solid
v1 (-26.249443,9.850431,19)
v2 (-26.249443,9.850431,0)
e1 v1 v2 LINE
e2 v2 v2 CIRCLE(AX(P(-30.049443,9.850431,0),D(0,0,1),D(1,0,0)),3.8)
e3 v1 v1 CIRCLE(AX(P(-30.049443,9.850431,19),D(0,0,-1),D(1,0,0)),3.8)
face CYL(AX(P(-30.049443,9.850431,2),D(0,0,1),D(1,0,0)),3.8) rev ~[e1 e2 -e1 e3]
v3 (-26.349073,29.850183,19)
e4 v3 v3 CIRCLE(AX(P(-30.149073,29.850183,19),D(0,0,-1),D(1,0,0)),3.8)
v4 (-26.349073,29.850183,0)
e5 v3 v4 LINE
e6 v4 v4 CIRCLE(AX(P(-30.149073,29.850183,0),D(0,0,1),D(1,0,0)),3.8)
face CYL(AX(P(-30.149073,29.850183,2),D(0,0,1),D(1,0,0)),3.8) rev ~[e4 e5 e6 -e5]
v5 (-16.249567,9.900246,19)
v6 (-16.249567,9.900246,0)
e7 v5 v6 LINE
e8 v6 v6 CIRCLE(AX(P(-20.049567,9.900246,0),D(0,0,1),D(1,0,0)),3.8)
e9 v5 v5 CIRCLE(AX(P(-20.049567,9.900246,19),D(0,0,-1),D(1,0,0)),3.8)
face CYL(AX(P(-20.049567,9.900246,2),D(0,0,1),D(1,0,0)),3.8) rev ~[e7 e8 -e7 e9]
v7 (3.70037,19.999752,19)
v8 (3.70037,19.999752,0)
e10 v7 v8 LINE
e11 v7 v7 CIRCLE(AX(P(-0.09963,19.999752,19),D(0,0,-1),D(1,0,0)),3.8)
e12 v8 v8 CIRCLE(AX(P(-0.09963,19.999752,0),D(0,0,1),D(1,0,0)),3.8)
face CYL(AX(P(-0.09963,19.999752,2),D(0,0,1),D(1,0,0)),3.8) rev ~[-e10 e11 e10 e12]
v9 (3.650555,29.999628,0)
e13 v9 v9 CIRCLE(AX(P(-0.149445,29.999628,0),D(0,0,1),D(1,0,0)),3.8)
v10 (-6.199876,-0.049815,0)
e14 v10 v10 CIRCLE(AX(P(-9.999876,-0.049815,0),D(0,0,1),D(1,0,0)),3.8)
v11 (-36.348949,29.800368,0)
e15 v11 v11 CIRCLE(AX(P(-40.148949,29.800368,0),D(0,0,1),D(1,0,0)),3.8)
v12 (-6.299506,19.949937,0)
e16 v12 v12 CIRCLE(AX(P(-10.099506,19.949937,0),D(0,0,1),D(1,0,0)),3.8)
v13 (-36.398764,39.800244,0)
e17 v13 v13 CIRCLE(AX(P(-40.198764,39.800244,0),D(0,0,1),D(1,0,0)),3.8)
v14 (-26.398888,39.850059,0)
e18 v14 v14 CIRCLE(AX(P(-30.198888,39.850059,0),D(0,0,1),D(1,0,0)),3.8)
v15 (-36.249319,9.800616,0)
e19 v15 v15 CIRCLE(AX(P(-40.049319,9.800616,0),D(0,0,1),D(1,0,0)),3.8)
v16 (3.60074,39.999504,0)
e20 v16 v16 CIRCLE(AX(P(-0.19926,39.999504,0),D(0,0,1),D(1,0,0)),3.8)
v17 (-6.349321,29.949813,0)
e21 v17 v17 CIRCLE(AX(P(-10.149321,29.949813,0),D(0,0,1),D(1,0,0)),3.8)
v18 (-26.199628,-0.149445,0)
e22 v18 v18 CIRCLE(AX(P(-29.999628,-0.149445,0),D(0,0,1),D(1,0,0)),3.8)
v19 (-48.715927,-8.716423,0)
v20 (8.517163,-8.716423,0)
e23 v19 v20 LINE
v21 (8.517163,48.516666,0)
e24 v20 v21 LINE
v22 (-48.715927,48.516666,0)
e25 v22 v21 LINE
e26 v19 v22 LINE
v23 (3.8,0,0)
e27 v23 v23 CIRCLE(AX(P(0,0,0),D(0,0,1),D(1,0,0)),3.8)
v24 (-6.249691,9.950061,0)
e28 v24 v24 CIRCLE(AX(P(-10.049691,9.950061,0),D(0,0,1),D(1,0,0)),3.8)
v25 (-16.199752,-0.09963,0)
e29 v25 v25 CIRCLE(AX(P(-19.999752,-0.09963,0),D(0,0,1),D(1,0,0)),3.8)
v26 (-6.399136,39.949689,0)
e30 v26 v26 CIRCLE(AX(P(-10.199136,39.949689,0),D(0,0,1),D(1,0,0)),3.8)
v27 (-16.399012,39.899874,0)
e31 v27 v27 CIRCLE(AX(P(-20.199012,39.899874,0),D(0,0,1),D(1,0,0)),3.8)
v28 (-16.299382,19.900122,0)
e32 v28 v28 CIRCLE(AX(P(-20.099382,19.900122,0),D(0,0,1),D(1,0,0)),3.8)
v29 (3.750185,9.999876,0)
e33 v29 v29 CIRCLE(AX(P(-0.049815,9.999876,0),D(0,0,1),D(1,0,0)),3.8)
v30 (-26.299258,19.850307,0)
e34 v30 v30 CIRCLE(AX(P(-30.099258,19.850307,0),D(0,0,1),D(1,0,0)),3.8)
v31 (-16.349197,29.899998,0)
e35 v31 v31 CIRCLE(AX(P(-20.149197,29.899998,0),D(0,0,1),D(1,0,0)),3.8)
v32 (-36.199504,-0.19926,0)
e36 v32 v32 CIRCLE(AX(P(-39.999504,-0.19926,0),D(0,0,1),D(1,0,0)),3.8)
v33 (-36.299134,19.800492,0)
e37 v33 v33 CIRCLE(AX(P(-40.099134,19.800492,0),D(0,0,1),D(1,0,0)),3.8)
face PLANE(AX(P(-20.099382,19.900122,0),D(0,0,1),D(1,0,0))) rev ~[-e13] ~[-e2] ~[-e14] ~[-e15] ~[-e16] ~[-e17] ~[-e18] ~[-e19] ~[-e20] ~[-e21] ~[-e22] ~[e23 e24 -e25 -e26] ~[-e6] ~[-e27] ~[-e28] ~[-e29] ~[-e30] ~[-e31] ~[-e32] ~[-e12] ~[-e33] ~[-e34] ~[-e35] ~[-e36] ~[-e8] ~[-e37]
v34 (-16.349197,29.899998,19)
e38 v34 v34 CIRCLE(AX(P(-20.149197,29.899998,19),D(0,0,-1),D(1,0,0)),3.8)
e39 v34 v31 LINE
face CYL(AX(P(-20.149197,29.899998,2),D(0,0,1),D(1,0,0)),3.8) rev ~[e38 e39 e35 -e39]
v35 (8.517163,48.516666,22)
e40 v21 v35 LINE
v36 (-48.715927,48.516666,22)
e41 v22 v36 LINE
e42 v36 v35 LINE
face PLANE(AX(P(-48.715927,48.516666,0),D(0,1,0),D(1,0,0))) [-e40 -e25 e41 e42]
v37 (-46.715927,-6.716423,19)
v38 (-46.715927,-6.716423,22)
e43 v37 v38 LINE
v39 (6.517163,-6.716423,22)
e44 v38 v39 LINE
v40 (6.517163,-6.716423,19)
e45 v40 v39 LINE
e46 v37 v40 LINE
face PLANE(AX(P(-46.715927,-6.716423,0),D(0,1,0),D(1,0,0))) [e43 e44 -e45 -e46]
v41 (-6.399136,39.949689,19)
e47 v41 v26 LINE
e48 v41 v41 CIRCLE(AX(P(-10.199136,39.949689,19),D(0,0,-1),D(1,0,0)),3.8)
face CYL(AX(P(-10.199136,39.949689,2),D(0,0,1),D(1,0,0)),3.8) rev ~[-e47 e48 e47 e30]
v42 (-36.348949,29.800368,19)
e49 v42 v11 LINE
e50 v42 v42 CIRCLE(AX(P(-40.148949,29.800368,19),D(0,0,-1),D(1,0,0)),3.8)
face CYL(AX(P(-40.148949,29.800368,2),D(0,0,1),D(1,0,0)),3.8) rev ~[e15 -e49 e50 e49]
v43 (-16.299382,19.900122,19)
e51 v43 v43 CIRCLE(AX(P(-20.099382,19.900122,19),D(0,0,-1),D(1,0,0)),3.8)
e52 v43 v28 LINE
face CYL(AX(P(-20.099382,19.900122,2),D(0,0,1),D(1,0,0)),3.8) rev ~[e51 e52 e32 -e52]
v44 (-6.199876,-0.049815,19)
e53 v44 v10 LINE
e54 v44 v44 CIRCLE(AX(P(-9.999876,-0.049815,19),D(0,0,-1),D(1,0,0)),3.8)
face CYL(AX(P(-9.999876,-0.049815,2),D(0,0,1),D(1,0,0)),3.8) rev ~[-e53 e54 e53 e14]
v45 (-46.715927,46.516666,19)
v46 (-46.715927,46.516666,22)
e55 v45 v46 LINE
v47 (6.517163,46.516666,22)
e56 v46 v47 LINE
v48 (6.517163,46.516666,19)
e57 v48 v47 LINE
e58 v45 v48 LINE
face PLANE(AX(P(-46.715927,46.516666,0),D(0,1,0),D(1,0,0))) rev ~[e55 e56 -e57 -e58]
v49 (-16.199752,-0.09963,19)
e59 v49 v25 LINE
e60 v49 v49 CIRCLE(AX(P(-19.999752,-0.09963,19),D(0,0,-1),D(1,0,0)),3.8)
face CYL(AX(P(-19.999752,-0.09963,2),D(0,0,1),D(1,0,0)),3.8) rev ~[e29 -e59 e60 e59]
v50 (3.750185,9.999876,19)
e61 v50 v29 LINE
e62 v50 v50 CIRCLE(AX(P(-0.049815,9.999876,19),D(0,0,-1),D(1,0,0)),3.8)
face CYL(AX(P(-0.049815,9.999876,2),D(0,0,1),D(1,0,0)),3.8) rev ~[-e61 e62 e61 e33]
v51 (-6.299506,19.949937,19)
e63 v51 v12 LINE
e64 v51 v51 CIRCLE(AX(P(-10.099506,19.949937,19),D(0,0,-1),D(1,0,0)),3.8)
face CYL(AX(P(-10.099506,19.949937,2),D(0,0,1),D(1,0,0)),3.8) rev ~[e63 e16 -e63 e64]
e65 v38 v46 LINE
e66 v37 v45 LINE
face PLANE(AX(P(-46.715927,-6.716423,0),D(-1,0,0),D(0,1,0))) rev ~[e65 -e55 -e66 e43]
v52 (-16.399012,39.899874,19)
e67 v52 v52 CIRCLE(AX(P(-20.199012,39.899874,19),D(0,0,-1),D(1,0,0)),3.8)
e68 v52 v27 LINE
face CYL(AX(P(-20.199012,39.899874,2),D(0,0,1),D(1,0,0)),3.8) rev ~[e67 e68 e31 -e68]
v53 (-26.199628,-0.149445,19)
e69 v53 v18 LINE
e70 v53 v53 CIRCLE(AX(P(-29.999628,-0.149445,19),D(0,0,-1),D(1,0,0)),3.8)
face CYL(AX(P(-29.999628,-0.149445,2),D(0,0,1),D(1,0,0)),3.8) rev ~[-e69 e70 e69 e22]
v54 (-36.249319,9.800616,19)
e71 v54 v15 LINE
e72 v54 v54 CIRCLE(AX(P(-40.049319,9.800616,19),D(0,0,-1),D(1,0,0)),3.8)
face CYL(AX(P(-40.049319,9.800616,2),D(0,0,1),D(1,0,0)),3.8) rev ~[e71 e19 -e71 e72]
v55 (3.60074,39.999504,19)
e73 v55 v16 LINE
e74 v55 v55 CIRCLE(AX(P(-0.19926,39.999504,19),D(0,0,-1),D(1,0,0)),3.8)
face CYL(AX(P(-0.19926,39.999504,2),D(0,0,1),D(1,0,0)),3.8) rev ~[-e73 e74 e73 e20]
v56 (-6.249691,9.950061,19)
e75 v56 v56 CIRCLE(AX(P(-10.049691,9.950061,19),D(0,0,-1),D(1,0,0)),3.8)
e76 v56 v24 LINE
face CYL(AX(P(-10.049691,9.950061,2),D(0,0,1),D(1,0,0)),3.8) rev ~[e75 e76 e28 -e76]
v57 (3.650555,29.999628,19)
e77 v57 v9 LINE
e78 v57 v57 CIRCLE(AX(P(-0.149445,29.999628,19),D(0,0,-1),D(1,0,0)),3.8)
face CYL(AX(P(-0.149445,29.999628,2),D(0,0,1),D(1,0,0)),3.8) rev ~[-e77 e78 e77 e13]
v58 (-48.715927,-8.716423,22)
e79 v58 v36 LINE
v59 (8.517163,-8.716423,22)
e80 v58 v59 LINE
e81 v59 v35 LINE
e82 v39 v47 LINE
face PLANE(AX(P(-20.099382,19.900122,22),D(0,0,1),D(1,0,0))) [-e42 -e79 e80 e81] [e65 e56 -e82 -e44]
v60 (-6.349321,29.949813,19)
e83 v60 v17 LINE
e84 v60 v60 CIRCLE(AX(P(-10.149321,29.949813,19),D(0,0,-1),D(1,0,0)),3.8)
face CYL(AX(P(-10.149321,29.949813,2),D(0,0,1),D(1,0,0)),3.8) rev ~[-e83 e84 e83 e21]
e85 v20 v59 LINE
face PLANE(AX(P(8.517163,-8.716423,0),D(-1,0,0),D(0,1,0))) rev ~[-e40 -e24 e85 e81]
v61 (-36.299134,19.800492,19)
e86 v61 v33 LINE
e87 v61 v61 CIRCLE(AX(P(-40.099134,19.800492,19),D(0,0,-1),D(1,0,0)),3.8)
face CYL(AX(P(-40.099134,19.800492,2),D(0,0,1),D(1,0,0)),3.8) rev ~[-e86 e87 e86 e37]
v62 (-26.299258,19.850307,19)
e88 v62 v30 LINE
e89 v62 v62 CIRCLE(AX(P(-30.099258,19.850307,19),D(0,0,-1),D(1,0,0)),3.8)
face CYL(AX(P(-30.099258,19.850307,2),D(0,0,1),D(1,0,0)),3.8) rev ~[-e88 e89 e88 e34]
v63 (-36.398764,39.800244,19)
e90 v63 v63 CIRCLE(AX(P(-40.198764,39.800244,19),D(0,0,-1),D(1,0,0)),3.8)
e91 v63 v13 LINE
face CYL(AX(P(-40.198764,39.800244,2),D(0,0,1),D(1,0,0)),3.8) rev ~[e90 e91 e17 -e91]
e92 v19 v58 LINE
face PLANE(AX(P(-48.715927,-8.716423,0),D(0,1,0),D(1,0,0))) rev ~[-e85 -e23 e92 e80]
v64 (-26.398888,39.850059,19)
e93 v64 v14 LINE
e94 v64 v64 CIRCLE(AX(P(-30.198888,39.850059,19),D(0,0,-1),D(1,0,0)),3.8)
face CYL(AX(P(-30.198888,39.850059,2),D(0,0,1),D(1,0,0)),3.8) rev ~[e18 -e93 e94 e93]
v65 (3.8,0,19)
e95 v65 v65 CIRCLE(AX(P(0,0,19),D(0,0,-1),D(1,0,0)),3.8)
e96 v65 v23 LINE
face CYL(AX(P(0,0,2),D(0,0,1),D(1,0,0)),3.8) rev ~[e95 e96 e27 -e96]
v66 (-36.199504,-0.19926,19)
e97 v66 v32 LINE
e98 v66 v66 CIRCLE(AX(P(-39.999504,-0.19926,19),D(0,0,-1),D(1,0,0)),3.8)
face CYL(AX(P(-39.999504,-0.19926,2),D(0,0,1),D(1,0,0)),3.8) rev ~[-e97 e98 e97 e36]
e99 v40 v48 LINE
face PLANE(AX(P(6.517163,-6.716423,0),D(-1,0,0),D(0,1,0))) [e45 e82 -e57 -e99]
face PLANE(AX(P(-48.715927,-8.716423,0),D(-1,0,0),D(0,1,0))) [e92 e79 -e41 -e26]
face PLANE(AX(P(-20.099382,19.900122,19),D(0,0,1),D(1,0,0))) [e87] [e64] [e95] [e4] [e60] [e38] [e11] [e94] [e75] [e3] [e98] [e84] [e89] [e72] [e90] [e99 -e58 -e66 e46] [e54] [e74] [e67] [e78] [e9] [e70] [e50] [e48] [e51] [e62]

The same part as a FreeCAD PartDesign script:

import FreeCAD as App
import Part
import Sketcher

V = App.Vector
Q = App.Units.Quantity


def add_polygon(sketch, points):
    """Adds a closed chain of lines whose ends are joined by coincident constraints."""
    first, n = sketch.GeometryCount, len(points)
    for a, b in zip(points, points[1:] + points[:1]):
        sketch.addGeometry(Part.LineSegment(App.Vector(*a, 0), App.Vector(*b, 0)), False)
    for i in range(n):
        sketch.addConstraint(Sketcher.Constraint("Coincident", first + i, 2, first + (i + 1) % n, 1))

doc = App.newDocument("Part")
body = doc.addObject("PartDesign::Body", "Body")

# Sketch on XY plane
sketch1 = body.newObject("Sketcher::SketchObject", "Sketch")
sketch1.AttachmentSupport = (doc.getObject("XY_Plane"), [""])
sketch1.MapMode = "FlatFace"
add_polygon(sketch1, [(-47, 47), (-47, -7), (7, -7), (7, 47)])  # lines 0-3
sketch1.addConstraint([
    Sketcher.Constraint("Vertical", 0),
    Sketcher.Constraint("Horizontal", 1),
    Sketcher.Constraint("Vertical", 2),
    Sketcher.Constraint("Horizontal", 3),
    Sketcher.Constraint("Equal", 3, 0),
    Sketcher.Constraint("DistanceX", 1, 1, 1, 2, Q("53.23309 mm")),
    Sketcher.Constraint("DistanceX", 0, 2, -1, 1, Q("46.715927 mm")),
    Sketcher.Constraint("DistanceY", 0, 2, -1, 1, Q("6.716423 mm")),
])
pad1 = body.newObject("PartDesign::Pad", "Pad")
pad1.Profile = sketch1
pad1.Length = 19

# Sketch on XY plane
sketch2 = body.newObject("Sketcher::SketchObject", "Sketch001")
sketch2.AttachmentSupport = (doc.getObject("XY_Plane"), [""])
sketch2.MapMode = "FlatFace"
sketch2.AttachmentOffset = App.Placement(V(0, 0, 2), App.Rotation())
sketch2.addGeometry([
    Part.Circle(V(0, 0, 0), V(0, 0, 1), 3.8),  # 0
    Part.Circle(V(-10, 0, 0), V(0, 0, 1), 3.8),  # 1
    Part.Circle(V(-20, -0.1, 0), V(0, 0, 1), 3.8),  # 2
    Part.Circle(V(-30, -0.1, 0), V(0, 0, 1), 3.8),  # 3
    Part.Circle(V(-40, -0.2, 0), V(0, 0, 1), 3.8),  # 4
    Part.Circle(V(0, 10, 0), V(0, 0, 1), 3.8),  # 5
    Part.Circle(V(-10, 10, 0), V(0, 0, 1), 3.8),  # 6
    Part.Circle(V(-20, 9.9, 0), V(0, 0, 1), 3.8),  # 7
    Part.Circle(V(-30, 9.9, 0), V(0, 0, 1), 3.8),  # 8
    Part.Circle(V(-40, 9.8, 0), V(0, 0, 1), 3.8),  # 9
    Part.Circle(V(-0.1, 20, 0), V(0, 0, 1), 3.8),  # 10
    Part.Circle(V(-10.1, 19.9, 0), V(0, 0, 1), 3.8),  # 11
    Part.Circle(V(-20.1, 19.9, 0), V(0, 0, 1), 3.8),  # 12
    Part.Circle(V(-30.1, 19.9, 0), V(0, 0, 1), 3.8),  # 13
    Part.Circle(V(-40.1, 19.8, 0), V(0, 0, 1), 3.8),  # 14
    Part.Circle(V(-0.1, 30, 0), V(0, 0, 1), 3.8),  # 15
    Part.Circle(V(-10.1, 29.9, 0), V(0, 0, 1), 3.8),  # 16
    Part.Circle(V(-20.1, 29.9, 0), V(0, 0, 1), 3.8),  # 17
    Part.Circle(V(-30.1, 29.9, 0), V(0, 0, 1), 3.8),  # 18
    Part.Circle(V(-40.1, 29.8, 0), V(0, 0, 1), 3.8),  # 19
    Part.Circle(V(-0.2, 40, 0), V(0, 0, 1), 3.8),  # 20
    Part.Circle(V(-10.2, 39.9, 0), V(0, 0, 1), 3.8),  # 21
    Part.Circle(V(-20.2, 39.9, 0), V(0, 0, 1), 3.8),  # 22
    Part.Circle(V(-30.2, 39.9, 0), V(0, 0, 1), 3.8),  # 23
    Part.Circle(V(-40.2, 39.8, 0), V(0, 0, 1), 3.8),  # 24
], False)
sketch2.addConstraint([
    Sketcher.Constraint("Coincident", 0, 3, -1, 1),
    Sketcher.Constraint("Equal", 0, 1),
    Sketcher.Constraint("Equal", 1, 2),
    Sketcher.Constraint("Equal", 2, 3),
    Sketcher.Constraint("Equal", 3, 4),
    Sketcher.Constraint("Equal", 4, 5),
    Sketcher.Constraint("Equal", 5, 6),
    Sketcher.Constraint("Equal", 6, 7),
    Sketcher.Constraint("Equal", 7, 8),
    Sketcher.Constraint("Equal", 8, 9),
    Sketcher.Constraint("Equal", 9, 10),
    Sketcher.Constraint("Equal", 10, 11),
    Sketcher.Constraint("Equal", 11, 12),
    Sketcher.Constraint("Equal", 12, 13),
    Sketcher.Constraint("Equal", 13, 14),
    Sketcher.Constraint("Equal", 14, 15),
    Sketcher.Constraint("Equal", 15, 16),
    Sketcher.Constraint("Equal", 16, 17),
    Sketcher.Constraint("Equal", 17, 18),
    Sketcher.Constraint("Equal", 18, 19),
    Sketcher.Constraint("Equal", 19, 20),
    Sketcher.Constraint("Equal", 20, 21),
    Sketcher.Constraint("Equal", 21, 22),
    Sketcher.Constraint("Equal", 22, 23),
    Sketcher.Constraint("Equal", 23, 24),
    Sketcher.Constraint("Diameter", 0, Q("7.6 mm")),
    Sketcher.Constraint("DistanceY", -1, 1, 17, 3, Q("29.899998 mm")),
    Sketcher.Constraint("DistanceY", 2, 3, -1, 1, Q("0.09963 mm")),
    Sketcher.Constraint("DistanceX", 3, 3, -1, 1, Q("29.999628 mm")),
    Sketcher.Constraint("DistanceY", 4, 3, -1, 1, Q("0.19926 mm")),
    Sketcher.Constraint("DistanceX", 6, 3, -1, 1, Q("10.049691 mm")),
    Sketcher.Constraint("DistanceY", -1, 1, 6, 3, Q("9.950061 mm")),
    Sketcher.Constraint("DistanceY", -1, 1, 8, 3, Q("9.850431 mm")),
    Sketcher.Constraint("DistanceX", 9, 3, -1, 1, Q("40.049319 mm")),
    Sketcher.Constraint("DistanceX", 10, 3, -1, 1, Q("0.09963 mm")),
    Sketcher.Constraint("DistanceX", 12, 3, -1, 1, Q("20.099382 mm")),
    Sketcher.Constraint("DistanceY", -1, 1, 12, 3, Q("19.900122 mm")),
    Sketcher.Constraint("DistanceY", -1, 1, 14, 3, Q("19.800492 mm")),
    Sketcher.Constraint("DistanceY", -1, 1, 15, 3, Q("29.999628 mm")),
    Sketcher.Constraint("DistanceX", 16, 3, -1, 1, Q("10.149321 mm")),
    Sketcher.Constraint("DistanceX", 19, 3, -1, 1, Q("40.148949 mm")),
    Sketcher.Constraint("DistanceX", 20, 3, -1, 1, Q("0.19926 mm")),
    Sketcher.Constraint("DistanceY", -1, 1, 21, 3, Q("39.949689 mm")),
    Sketcher.Constraint("DistanceX", 22, 3, -1, 1, Q("20.199012 mm")),
    Sketcher.Constraint("DistanceX", 23, 3, -1, 1, Q("30.198888 mm")),
    Sketcher.Constraint("DistanceY", -1, 1, 23, 3, Q("39.850059 mm")),
    Sketcher.Constraint("DistanceY", 3, 3, 1, 3, Q("0.09963 mm")),
    Sketcher.Constraint("DistanceX", 4, 3, 1, 3, Q("29.999628 mm")),
    Sketcher.Constraint("DistanceX", 1, 3, 5, 3, Q("9.950061 mm")),
    Sketcher.Constraint("DistanceY", 1, 3, 5, 3, Q("10.049691 mm")),
    Sketcher.Constraint("DistanceX", 2, 3, 6, 3, Q("9.950061 mm")),
    Sketcher.Constraint("DistanceX", 7, 3, 1, 3, Q("10.049691 mm")),
    Sketcher.Constraint("DistanceY", 1, 3, 7, 3, Q("9.950061 mm")),
    Sketcher.Constraint("DistanceX", 3, 3, 7, 3, Q("9.950061 mm")),
    Sketcher.Constraint("DistanceX", 8, 3, 2, 3, Q("10.049691 mm")),
    Sketcher.Constraint("DistanceY", 3, 3, 9, 3, Q("9.950061 mm")),
    Sketcher.Constraint("DistanceY", 6, 3, 10, 3, Q("10.049691 mm")),
    Sketcher.Constraint("DistanceX", 11, 3, 5, 3, Q("10.049691 mm")),
    Sketcher.Constraint("DistanceY", 5, 3, 11, 3, Q("9.950061 mm")),
    Sketcher.Constraint("DistanceX", 9, 3, 13, 3, Q("9.950061 mm")),
    Sketcher.Constraint("DistanceY", 9, 3, 13, 3, Q("10.049691 mm")),
    Sketcher.Constraint("DistanceX", 14, 3, 8, 3, Q("10.049691 mm")),
    Sketcher.Constraint("DistanceX", 11, 3, 15, 3, Q("9.950061 mm")),
    Sketcher.Constraint("DistanceY", 11, 3, 15, 3, Q("10.049691 mm")),
    Sketcher.Constraint("DistanceY", 10, 3, 16, 3, Q("9.950061 mm")),
    Sketcher.Constraint("DistanceX", 13, 3, 17, 3, Q("9.950061 mm")),
    Sketcher.Constraint("DistanceX", 14, 3, 18, 3, Q("9.950061 mm")),
    Sketcher.Constraint("DistanceY", 14, 3, 18, 3, Q("10.049691 mm")),
    Sketcher.Constraint("DistanceY", 13, 3, 19, 3, Q("9.950061 mm")),
    Sketcher.Constraint("DistanceY", 16, 3, 20, 3, Q("10.049691 mm")),
    Sketcher.Constraint("DistanceX", 21, 3, 15, 3, Q("10.049691 mm")),
    Sketcher.Constraint("DistanceY", 16, 3, 22, 3, Q("9.950061 mm")),
    Sketcher.Constraint("DistanceX", 24, 3, 18, 3, Q("10.049691 mm")),
    Sketcher.Constraint("DistanceY", 18, 3, 24, 3, Q("9.950061 mm")),
])
pocket1 = body.newObject("PartDesign::Pocket", "Pocket")
pocket1.Profile = sketch2
pocket1.Type = "ThroughAll"
pocket1.Midplane = True

# Sketch on XY plane
sketch3 = body.newObject("Sketcher::SketchObject", "Sketch002")
sketch3.AttachmentSupport = (doc.getObject("XY_Plane"), [""])
sketch3.MapMode = "FlatFace"
add_polygon(sketch3, [(-49, 49), (-49, -9), (9, -9), (9, 49)])  # lines 0-3
add_polygon(sketch3, [(7, -7), (-47, -7), (-47, 47), (7, 47)])  # lines 4-7
sketch3.addConstraint([
    Sketcher.Constraint("Vertical", 0),
    Sketcher.Constraint("Horizontal", 1),
    Sketcher.Constraint("Vertical", 2),
    Sketcher.Constraint("Horizontal", 3),
    Sketcher.Constraint("Horizontal", 4),
    Sketcher.Constraint("Vertical", 5),
    Sketcher.Constraint("Horizontal", 6),
    Sketcher.Constraint("Vertical", 7),
    Sketcher.Constraint("Equal", 3, 0),
    Sketcher.Constraint("Equal", 6, 5),
    Sketcher.Constraint("DistanceX", 0, 2, 4, 2, Q("2 mm")),
    Sketcher.Constraint("DistanceY", 0, 2, 4, 2, Q("2 mm")),
    Sketcher.Constraint("DistanceY", 5, 2, 3, 2, Q("2 mm")),
    Sketcher.Constraint("DistanceX", 1, 1, 1, 2, Q("57.23309 mm")),
    Sketcher.Constraint("DistanceX", 0, 2, -1, 1, Q("48.715927 mm")),
    Sketcher.Constraint("DistanceY", 0, 2, -1, 1, Q("8.716423 mm")),
])
pad2 = body.newObject("PartDesign::Pad", "Pad001")
pad2.Profile = sketch3
pad2.Length = 22

doc.recompute()
